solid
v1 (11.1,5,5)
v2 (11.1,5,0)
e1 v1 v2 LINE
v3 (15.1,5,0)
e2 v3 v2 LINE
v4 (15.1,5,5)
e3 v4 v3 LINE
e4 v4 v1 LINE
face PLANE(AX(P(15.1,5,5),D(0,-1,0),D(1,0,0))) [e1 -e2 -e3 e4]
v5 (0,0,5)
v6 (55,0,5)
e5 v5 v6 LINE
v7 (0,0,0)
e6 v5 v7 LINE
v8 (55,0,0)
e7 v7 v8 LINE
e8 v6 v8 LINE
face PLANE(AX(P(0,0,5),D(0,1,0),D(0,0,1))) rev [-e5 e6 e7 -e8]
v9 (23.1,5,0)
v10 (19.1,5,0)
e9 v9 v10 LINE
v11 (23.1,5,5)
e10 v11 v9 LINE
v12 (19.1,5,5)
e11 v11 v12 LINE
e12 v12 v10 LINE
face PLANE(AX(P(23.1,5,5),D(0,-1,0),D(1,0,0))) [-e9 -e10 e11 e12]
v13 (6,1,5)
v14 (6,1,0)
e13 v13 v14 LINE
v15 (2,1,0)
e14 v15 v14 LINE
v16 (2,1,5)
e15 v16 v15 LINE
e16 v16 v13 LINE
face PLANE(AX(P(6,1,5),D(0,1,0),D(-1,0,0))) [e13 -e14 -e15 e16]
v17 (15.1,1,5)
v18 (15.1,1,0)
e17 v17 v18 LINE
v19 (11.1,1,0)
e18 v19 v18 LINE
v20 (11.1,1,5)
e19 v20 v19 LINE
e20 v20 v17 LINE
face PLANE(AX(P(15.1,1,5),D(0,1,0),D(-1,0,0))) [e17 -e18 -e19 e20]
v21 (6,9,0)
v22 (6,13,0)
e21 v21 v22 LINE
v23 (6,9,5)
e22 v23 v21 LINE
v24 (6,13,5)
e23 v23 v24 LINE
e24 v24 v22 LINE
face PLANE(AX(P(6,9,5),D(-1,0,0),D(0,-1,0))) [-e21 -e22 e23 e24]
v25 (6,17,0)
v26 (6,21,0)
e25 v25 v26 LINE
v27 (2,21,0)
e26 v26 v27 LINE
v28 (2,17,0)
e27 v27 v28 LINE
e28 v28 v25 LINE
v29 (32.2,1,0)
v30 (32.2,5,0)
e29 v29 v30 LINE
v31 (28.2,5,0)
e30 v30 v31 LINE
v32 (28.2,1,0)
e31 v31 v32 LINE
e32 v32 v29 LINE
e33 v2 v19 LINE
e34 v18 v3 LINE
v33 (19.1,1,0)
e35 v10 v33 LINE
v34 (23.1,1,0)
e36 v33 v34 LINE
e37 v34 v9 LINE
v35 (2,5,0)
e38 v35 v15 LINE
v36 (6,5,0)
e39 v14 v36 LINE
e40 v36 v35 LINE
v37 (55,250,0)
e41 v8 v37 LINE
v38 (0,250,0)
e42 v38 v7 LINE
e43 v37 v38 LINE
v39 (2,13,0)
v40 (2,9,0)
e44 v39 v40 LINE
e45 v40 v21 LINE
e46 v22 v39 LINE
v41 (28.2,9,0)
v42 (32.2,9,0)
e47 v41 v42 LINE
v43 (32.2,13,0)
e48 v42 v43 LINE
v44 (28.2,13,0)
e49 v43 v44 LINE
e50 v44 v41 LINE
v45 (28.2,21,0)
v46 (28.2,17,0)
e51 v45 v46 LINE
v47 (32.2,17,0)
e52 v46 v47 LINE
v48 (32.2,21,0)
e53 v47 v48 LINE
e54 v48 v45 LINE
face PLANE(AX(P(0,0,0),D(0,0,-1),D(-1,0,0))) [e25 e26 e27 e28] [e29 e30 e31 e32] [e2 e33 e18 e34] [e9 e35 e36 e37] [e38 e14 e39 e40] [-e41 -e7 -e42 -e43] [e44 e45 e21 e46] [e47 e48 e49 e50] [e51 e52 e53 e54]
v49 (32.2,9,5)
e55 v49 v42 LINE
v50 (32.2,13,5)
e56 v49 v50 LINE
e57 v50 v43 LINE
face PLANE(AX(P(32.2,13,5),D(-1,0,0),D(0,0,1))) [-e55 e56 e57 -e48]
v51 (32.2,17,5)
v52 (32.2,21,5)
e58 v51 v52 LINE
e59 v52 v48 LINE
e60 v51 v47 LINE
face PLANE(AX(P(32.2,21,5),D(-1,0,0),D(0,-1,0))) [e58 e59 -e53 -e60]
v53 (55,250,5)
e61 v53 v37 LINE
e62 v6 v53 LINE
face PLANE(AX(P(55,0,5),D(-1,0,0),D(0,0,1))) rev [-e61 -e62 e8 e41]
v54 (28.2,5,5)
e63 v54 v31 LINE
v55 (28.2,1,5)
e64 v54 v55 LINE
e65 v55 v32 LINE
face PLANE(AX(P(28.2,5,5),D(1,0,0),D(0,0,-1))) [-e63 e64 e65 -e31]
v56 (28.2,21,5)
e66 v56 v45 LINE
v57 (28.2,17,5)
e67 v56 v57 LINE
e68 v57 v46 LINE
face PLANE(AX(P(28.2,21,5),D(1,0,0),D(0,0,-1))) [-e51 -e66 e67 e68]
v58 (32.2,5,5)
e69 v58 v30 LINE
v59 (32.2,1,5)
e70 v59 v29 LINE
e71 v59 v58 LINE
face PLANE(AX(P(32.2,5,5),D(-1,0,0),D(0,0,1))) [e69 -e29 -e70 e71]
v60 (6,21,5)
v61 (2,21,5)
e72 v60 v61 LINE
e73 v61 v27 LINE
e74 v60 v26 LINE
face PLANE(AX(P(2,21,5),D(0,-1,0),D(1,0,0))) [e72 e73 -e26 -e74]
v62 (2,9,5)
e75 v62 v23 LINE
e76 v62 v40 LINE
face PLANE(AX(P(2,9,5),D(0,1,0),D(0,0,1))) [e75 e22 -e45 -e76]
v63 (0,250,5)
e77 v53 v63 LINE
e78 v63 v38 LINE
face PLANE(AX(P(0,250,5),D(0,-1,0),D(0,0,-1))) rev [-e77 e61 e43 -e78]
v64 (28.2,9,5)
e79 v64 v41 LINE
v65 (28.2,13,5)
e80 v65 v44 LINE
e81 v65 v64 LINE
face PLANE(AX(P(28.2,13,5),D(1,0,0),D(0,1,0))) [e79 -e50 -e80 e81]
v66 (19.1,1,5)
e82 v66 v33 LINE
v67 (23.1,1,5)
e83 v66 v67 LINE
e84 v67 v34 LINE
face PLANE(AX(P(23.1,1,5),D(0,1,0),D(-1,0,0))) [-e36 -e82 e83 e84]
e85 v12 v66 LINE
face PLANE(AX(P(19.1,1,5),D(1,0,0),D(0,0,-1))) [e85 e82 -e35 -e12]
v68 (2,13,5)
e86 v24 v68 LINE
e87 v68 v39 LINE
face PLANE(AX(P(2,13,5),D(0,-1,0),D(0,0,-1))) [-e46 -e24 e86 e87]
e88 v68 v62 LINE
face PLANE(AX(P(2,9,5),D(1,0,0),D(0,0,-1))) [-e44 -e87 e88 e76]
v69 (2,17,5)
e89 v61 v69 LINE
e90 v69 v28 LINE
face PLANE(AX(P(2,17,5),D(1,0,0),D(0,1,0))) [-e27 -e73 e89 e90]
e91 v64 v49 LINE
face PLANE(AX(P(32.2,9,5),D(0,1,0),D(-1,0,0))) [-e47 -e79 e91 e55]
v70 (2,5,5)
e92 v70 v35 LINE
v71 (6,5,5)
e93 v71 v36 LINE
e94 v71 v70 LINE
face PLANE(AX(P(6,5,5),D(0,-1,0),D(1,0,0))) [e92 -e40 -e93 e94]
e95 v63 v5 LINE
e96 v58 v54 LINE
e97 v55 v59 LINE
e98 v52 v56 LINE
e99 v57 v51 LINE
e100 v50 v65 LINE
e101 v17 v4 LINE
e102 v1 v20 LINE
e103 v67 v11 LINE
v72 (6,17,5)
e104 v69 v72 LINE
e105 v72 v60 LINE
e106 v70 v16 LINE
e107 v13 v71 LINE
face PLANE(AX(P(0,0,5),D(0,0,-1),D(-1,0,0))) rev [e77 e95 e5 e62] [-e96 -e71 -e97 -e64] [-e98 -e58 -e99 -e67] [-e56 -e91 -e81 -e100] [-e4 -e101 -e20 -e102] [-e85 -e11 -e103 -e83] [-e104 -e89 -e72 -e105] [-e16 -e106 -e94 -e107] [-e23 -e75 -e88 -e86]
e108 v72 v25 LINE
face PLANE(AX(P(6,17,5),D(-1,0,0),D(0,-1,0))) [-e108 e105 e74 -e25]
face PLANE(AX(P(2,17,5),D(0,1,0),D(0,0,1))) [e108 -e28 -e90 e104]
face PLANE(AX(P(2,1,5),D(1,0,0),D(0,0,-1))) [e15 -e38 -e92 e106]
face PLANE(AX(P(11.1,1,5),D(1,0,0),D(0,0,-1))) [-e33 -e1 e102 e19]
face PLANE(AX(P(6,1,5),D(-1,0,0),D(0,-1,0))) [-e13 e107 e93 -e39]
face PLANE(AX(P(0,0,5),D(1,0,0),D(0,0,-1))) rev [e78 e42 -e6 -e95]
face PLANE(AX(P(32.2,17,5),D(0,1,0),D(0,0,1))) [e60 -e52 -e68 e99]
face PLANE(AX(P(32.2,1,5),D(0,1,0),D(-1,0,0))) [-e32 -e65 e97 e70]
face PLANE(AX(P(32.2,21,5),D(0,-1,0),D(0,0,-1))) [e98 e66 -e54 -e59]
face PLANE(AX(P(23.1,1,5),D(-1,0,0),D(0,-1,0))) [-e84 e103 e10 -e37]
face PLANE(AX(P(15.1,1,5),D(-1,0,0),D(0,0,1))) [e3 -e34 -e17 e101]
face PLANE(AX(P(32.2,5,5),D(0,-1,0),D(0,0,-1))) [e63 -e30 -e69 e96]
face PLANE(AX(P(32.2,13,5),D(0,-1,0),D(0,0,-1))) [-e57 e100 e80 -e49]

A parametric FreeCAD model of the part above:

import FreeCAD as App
import Part
import Sketcher

doc = App.newDocument("Part")
body = doc.addObject("PartDesign::Body", "Body")

sketch1 = body.newObject("Sketcher::SketchObject", "Sketch")
sketch1.AttachmentSupport = (doc.getObject("XY_Plane"), [""])
sketch1.MapMode = "FlatFace"
sketch1.addGeometry([
    Part.LineSegment(App.Vector(0, 250, 0), App.Vector(0, 0, 0)),
    Part.LineSegment(App.Vector(0, 0, 0), App.Vector(55, 0, 0)),
    Part.LineSegment(App.Vector(55, 0, 0), App.Vector(55, 250, 0)),
    Part.LineSegment(App.Vector(55, 250, 0), App.Vector(0, 250, 0)),
    Part.LineSegment(App.Vector(6, 1, 0), App.Vector(2, 1, 0)),
    Part.LineSegment(App.Vector(2, 1, 0), App.Vector(2, 5, 0)),
    Part.LineSegment(App.Vector(2, 5, 0), App.Vector(6, 5, 0)),
    Part.LineSegment(App.Vector(6, 5, 0), App.Vector(6, 1, 0)),
    Part.LineSegment(App.Vector(15.1, 1, 0), App.Vector(11.1, 1, 0)),
    Part.LineSegment(App.Vector(11.1, 1, 0), App.Vector(11.1, 5, 0)),
    Part.LineSegment(App.Vector(11.1, 5, 0), App.Vector(15.1, 5, 0)),
    Part.LineSegment(App.Vector(15.1, 5, 0), App.Vector(15.1, 1, 0)),
    Part.LineSegment(App.Vector(23.1, 1, 0), App.Vector(19.1, 1, 0)),
    Part.LineSegment(App.Vector(19.1, 1, 0), App.Vector(19.1, 5, 0)),
    Part.LineSegment(App.Vector(19.1, 5, 0), App.Vector(23.1, 5, 0)),
    Part.LineSegment(App.Vector(23.1, 5, 0), App.Vector(23.1, 1, 0)),
    Part.LineSegment(App.Vector(32.2, 1, 0), App.Vector(28.2, 1, 0)),
    Part.LineSegment(App.Vector(28.2, 1, 0), App.Vector(28.2, 5, 0)),
    Part.LineSegment(App.Vector(28.2, 5, 0), App.Vector(32.2, 5, 0)),
    Part.LineSegment(App.Vector(32.2, 5, 0), App.Vector(32.2, 1, 0)),
    Part.LineSegment(App.Vector(6, 9, 0), App.Vector(2, 9, 0)),
    Part.LineSegment(App.Vector(2, 9, 0), App.Vector(2, 13, 0)),
    Part.LineSegment(App.Vector(2, 13, 0), App.Vector(6, 13, 0)),
    Part.LineSegment(App.Vector(6, 13, 0), App.Vector(6, 9, 0)),
    Part.LineSegment(App.Vector(6, 17, 0), App.Vector(2, 17, 0)),
    Part.LineSegment(App.Vector(2, 17, 0), App.Vector(2, 21, 0)),
    Part.LineSegment(App.Vector(2, 21, 0), App.Vector(6, 21, 0)),
    Part.LineSegment(App.Vector(6, 21, 0), App.Vector(6, 17, 0)),
    Part.LineSegment(App.Vector(32.2, 9, 0), App.Vector(28.2, 9, 0)),
    Part.LineSegment(App.Vector(28.2, 9, 0), App.Vector(28.2, 13, 0)),
    Part.LineSegment(App.Vector(28.2, 13, 0), App.Vector(32.2, 13, 0)),
    Part.LineSegment(App.Vector(32.2, 13, 0), App.Vector(32.2, 9, 0)),
    Part.LineSegment(App.Vector(32.2, 17, 0), App.Vector(28.2, 17, 0)),
    Part.LineSegment(App.Vector(28.2, 17, 0), App.Vector(28.2, 21, 0)),
    Part.LineSegment(App.Vector(28.2, 21, 0), App.Vector(32.2, 21, 0)),
    Part.LineSegment(App.Vector(32.2, 21, 0), App.Vector(32.2, 17, 0)),
], False)
sketch1.addConstraint([
    Sketcher.Constraint("Coincident", 0, 2, 1, 1),
    Sketcher.Constraint("Coincident", 1, 2, 2, 1),
    Sketcher.Constraint("Coincident", 2, 2, 3, 1),
    Sketcher.Constraint("Coincident", 3, 2, 0, 1),
    Sketcher.Constraint("Coincident", 4, 2, 5, 1),
    Sketcher.Constraint("Coincident", 5, 2, 6, 1),
    Sketcher.Constraint("Coincident", 6, 2, 7, 1),
    Sketcher.Constraint("Coincident", 7, 2, 4, 1),
    Sketcher.Constraint("Coincident", 8, 2, 9, 1),
    Sketcher.Constraint("Coincident", 9, 2, 10, 1),
    Sketcher.Constraint("Coincident", 10, 2, 11, 1),
    Sketcher.Constraint("Coincident", 11, 2, 8, 1),
    Sketcher.Constraint("Coincident", 12, 2, 13, 1),
    Sketcher.Constraint("Coincident", 13, 2, 14, 1),
    Sketcher.Constraint("Coincident", 14, 2, 15, 1),
    Sketcher.Constraint("Coincident", 15, 2, 12, 1),
    Sketcher.Constraint("Coincident", 16, 2, 17, 1),
    Sketcher.Constraint("Coincident", 17, 2, 18, 1),
    Sketcher.Constraint("Coincident", 18, 2, 19, 1),
    Sketcher.Constraint("Coincident", 19, 2, 16, 1),
    Sketcher.Constraint("Coincident", 20, 2, 21, 1),
    Sketcher.Constraint("Coincident", 21, 2, 22, 1),
    Sketcher.Constraint("Coincident", 22, 2, 23, 1),
    Sketcher.Constraint("Coincident", 23, 2, 20, 1),
    Sketcher.Constraint("Coincident", 24, 2, 25, 1),
    Sketcher.Constraint("Coincident", 25, 2, 26, 1),
    Sketcher.Constraint("Coincident", 26, 2, 27, 1),
    Sketcher.Constraint("Coincident", 27, 2, 24, 1),
    Sketcher.Constraint("Coincident", 28, 2, 29, 1),
    Sketcher.Constraint("Coincident", 29, 2, 30, 1),
    Sketcher.Constraint("Coincident", 30, 2, 31, 1),
    Sketcher.Constraint("Coincident", 31, 2, 28, 1),
    Sketcher.Constraint("Coincident", 32, 2, 33, 1),
    Sketcher.Constraint("Coincident", 33, 2, 34, 1),
    Sketcher.Constraint("Coincident", 34, 2, 35, 1),
    Sketcher.Constraint("Coincident", 35, 2, 32, 1),
    Sketcher.Constraint("Vertical", 0),
    Sketcher.Constraint("Horizontal", 1),
    Sketcher.Constraint("Vertical", 2),
    Sketcher.Constraint("Horizontal", 3),
    Sketcher.Constraint("Horizontal", 4),
    Sketcher.Constraint("Vertical", 5),
    Sketcher.Constraint("Horizontal", 6),
    Sketcher.Constraint("Vertical", 7),
    Sketcher.Constraint("Horizontal", 8),
    Sketcher.Constraint("Vertical", 9),
    Sketcher.Constraint("Horizontal", 10),
    Sketcher.Constraint("Vertical", 11),
    Sketcher.Constraint("Horizontal", 12),
    Sketcher.Constraint("Vertical", 13),
    Sketcher.Constraint("Horizontal", 14),
    Sketcher.Constraint("Vertical", 15),
    Sketcher.Constraint("Horizontal", 16),
    Sketcher.Constraint("Vertical", 17),
    Sketcher.Constraint("Horizontal", 18),
    Sketcher.Constraint("Vertical", 19),
    Sketcher.Constraint("Horizontal", 20),
    Sketcher.Constraint("Vertical", 21),
    Sketcher.Constraint("Horizontal", 22),
    Sketcher.Constraint("Vertical", 23),
    Sketcher.Constraint("Horizontal", 24),
    Sketcher.Constraint("Vertical", 25),
    Sketcher.Constraint("Horizontal", 26),
    Sketcher.Constraint("Vertical", 27),
    Sketcher.Constraint("Horizontal", 28),
    Sketcher.Constraint("Vertical", 29),
    Sketcher.Constraint("Horizontal", 30),
    Sketcher.Constraint("Vertical", 31),
    Sketcher.Constraint("Horizontal", 32),
    Sketcher.Constraint("Vertical", 33),
    Sketcher.Constraint("Horizontal", 34),
    Sketcher.Constraint("Vertical", 35),
    Sketcher.Constraint("Coincident", 0, 2, -1, 1),
    Sketcher.Constraint("Horizontal", 7, 2, 8, 2),
    Sketcher.Constraint("Horizontal", 6, 2, 9, 2),
    Sketcher.Constraint("Horizontal", 11, 2, 12, 2),
    Sketcher.Constraint("Horizontal", 10, 2, 13, 2),
    Sketcher.Constraint("Horizontal", 15, 2, 16, 2),
    Sketcher.Constraint("Horizontal", 14, 2, 17, 2),
    Sketcher.Constraint("Horizontal", 23, 2, 28, 2),
    Sketcher.Constraint("Horizontal", 22, 2, 29, 2),
    Sketcher.Constraint("Horizontal", 27, 2, 32, 2),
    Sketcher.Constraint("Horizontal", 26, 2, 33, 2),
    Sketcher.Constraint("Vertical", 5, 2, 20, 2),
    Sketcher.Constraint("Vertical", 7, 2, 22, 2),
    Sketcher.Constraint("Vertical", 21, 2, 24, 2),
    Sketcher.Constraint("Vertical", 23, 2, 26, 2),
    Sketcher.Constraint("Vertical", 17, 2, 28, 2),
    Sketcher.Constraint("Vertical", 19, 2, 30, 2),
    Sketcher.Constraint("Vertical", 29, 2, 32, 2),
    Sketcher.Constraint("Vertical", 31, 2, 34, 2),
    Sketcher.Constraint("Equal", 6, 8),
    Sketcher.Constraint("Equal", 10, 12),
    Sketcher.Constraint("Equal", 14, 16),
    Sketcher.Constraint("Equal", 34, 5),
    Sketcher.Constraint("Equal", 19, 21),
    Sketcher.Constraint("Equal", 23, 25),
    Sketcher.Constraint("DistanceX", 1, 1, 1, 2, 55.0),
    Sketcher.Constraint("DistanceX", 4, 2, 4, 1, 4.0),
    Sketcher.Constraint("DistanceY", 0, 2, 0, 1, 250.0),
    Sketcher.Constraint("DistanceX", -1, 1, 4, 2, 2.0),
    Sketcher.Constraint("DistanceY", -1, 1, 4, 2, 1.0),
    Sketcher.Constraint("DistanceY", -1, 1, 20, 2, 9.0),
    Sketcher.Constraint("DistanceY", -1, 1, 24, 2, 17.0),
    Sketcher.Constraint("DistanceX", 11, 2, 12, 2, 4.0),
    Sketcher.Constraint("DistanceX", -1, 1, 8, 2, 11.1),
    Sketcher.Constraint("DistanceX", -1, 1, 16, 2, 28.2),
])
pad1 = body.newObject("PartDesign::Pad", "Pad")
pad1.Profile = sketch1
pad1.Length = 5

doc.recompute()
